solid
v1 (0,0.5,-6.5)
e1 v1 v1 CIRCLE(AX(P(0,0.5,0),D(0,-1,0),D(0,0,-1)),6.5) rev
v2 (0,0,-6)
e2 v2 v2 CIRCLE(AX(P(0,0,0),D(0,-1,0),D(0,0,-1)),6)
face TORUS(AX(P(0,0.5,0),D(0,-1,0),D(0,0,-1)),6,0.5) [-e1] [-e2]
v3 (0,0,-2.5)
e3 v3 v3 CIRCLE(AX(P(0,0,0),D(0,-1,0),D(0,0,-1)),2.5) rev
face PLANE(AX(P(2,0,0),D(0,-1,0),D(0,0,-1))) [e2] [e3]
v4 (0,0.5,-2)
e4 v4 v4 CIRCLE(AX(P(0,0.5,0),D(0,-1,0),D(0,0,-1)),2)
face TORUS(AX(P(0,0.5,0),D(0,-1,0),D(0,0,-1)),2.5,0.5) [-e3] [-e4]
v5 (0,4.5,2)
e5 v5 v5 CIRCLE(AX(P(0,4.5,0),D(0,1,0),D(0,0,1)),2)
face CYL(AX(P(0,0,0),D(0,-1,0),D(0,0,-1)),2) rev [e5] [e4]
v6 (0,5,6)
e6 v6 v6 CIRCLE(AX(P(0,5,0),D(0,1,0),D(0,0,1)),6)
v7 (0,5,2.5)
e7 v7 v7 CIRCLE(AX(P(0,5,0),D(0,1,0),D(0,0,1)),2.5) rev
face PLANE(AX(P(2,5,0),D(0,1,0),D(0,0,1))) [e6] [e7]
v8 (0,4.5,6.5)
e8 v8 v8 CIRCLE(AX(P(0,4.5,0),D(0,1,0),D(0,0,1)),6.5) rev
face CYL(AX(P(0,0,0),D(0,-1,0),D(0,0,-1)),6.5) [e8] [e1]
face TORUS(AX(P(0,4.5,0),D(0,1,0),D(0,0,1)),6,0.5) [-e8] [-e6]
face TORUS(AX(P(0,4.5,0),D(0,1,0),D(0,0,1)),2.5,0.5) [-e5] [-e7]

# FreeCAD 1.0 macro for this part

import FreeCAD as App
import Part
import Sketcher

V = App.Vector
Q = App.Units.Quantity


def edges_at(feature, points):
    """Names of the edges that pass closest to the given points."""
    edges = feature.Shape.Edges
    near = lambda p: min(range(len(edges)), key=lambda i: edges[i].distToShape(Part.Vertex(*p))[0])
    return sorted({f"Edge{near(p) + 1}" for p in points})


def add_polygon(sketch, points):
    """Adds a closed chain of lines whose ends are joined by coincident constraints."""
    first, n = sketch.GeometryCount, len(points)
    for a, b in zip(points, points[1:] + points[:1]):
        sketch.addGeometry(Part.LineSegment(App.Vector(*a, 0), App.Vector(*b, 0)), False)
    for i in range(n):
        sketch.addConstraint(Sketcher.Constraint("Coincident", first + i, 2, first + (i + 1) % n, 1))

doc = App.newDocument("Part")
body = doc.addObject("PartDesign::Body", "Body")

sketch1 = body.newObject("Sketcher::SketchObject", "Sketch")
sketch1.AttachmentSupport = (doc.getObject("XY_Plane"), [""])
sketch1.MapMode = "FlatFace"
add_polygon(sketch1, [(2, 5), (2, 0), (6.5, 0), (6.5, 5)])
sketch1.addConstraint([
    Sketcher.Constraint("Vertical", 0),
    Sketcher.Constraint("Horizontal", 1),
    Sketcher.Constraint("Vertical", 2),
    Sketcher.Constraint("Horizontal", 3),
    Sketcher.Constraint("PointOnObject", 0, 2, -1),
    Sketcher.Constraint("DistanceY", 0, 2, 0, 1, Q("5 mm")),
    Sketcher.Constraint("DistanceX", 1, 1, 1, 2, Q("4.5 mm")),
    Sketcher.Constraint("DistanceX", -1, 1, 0, 2, Q("2 mm")),
])
revolution = body.newObject("PartDesign::Revolution", "Revolution")
revolution.Profile = sketch1
revolution.ReferenceAxis = (sketch1, ["V_Axis"])
revolution.Angle = 360
doc.recompute()

fillet = body.newObject("PartDesign::Fillet", "Fillet")
fillet.Base = (revolution, edges_at(revolution, [
    (0, 0, 2),
    (0, 0, 6.5),
    (0, 5, 6.5),
    (0, 5, 2),
]))
fillet.Radius = 0.5

doc.recompute()
